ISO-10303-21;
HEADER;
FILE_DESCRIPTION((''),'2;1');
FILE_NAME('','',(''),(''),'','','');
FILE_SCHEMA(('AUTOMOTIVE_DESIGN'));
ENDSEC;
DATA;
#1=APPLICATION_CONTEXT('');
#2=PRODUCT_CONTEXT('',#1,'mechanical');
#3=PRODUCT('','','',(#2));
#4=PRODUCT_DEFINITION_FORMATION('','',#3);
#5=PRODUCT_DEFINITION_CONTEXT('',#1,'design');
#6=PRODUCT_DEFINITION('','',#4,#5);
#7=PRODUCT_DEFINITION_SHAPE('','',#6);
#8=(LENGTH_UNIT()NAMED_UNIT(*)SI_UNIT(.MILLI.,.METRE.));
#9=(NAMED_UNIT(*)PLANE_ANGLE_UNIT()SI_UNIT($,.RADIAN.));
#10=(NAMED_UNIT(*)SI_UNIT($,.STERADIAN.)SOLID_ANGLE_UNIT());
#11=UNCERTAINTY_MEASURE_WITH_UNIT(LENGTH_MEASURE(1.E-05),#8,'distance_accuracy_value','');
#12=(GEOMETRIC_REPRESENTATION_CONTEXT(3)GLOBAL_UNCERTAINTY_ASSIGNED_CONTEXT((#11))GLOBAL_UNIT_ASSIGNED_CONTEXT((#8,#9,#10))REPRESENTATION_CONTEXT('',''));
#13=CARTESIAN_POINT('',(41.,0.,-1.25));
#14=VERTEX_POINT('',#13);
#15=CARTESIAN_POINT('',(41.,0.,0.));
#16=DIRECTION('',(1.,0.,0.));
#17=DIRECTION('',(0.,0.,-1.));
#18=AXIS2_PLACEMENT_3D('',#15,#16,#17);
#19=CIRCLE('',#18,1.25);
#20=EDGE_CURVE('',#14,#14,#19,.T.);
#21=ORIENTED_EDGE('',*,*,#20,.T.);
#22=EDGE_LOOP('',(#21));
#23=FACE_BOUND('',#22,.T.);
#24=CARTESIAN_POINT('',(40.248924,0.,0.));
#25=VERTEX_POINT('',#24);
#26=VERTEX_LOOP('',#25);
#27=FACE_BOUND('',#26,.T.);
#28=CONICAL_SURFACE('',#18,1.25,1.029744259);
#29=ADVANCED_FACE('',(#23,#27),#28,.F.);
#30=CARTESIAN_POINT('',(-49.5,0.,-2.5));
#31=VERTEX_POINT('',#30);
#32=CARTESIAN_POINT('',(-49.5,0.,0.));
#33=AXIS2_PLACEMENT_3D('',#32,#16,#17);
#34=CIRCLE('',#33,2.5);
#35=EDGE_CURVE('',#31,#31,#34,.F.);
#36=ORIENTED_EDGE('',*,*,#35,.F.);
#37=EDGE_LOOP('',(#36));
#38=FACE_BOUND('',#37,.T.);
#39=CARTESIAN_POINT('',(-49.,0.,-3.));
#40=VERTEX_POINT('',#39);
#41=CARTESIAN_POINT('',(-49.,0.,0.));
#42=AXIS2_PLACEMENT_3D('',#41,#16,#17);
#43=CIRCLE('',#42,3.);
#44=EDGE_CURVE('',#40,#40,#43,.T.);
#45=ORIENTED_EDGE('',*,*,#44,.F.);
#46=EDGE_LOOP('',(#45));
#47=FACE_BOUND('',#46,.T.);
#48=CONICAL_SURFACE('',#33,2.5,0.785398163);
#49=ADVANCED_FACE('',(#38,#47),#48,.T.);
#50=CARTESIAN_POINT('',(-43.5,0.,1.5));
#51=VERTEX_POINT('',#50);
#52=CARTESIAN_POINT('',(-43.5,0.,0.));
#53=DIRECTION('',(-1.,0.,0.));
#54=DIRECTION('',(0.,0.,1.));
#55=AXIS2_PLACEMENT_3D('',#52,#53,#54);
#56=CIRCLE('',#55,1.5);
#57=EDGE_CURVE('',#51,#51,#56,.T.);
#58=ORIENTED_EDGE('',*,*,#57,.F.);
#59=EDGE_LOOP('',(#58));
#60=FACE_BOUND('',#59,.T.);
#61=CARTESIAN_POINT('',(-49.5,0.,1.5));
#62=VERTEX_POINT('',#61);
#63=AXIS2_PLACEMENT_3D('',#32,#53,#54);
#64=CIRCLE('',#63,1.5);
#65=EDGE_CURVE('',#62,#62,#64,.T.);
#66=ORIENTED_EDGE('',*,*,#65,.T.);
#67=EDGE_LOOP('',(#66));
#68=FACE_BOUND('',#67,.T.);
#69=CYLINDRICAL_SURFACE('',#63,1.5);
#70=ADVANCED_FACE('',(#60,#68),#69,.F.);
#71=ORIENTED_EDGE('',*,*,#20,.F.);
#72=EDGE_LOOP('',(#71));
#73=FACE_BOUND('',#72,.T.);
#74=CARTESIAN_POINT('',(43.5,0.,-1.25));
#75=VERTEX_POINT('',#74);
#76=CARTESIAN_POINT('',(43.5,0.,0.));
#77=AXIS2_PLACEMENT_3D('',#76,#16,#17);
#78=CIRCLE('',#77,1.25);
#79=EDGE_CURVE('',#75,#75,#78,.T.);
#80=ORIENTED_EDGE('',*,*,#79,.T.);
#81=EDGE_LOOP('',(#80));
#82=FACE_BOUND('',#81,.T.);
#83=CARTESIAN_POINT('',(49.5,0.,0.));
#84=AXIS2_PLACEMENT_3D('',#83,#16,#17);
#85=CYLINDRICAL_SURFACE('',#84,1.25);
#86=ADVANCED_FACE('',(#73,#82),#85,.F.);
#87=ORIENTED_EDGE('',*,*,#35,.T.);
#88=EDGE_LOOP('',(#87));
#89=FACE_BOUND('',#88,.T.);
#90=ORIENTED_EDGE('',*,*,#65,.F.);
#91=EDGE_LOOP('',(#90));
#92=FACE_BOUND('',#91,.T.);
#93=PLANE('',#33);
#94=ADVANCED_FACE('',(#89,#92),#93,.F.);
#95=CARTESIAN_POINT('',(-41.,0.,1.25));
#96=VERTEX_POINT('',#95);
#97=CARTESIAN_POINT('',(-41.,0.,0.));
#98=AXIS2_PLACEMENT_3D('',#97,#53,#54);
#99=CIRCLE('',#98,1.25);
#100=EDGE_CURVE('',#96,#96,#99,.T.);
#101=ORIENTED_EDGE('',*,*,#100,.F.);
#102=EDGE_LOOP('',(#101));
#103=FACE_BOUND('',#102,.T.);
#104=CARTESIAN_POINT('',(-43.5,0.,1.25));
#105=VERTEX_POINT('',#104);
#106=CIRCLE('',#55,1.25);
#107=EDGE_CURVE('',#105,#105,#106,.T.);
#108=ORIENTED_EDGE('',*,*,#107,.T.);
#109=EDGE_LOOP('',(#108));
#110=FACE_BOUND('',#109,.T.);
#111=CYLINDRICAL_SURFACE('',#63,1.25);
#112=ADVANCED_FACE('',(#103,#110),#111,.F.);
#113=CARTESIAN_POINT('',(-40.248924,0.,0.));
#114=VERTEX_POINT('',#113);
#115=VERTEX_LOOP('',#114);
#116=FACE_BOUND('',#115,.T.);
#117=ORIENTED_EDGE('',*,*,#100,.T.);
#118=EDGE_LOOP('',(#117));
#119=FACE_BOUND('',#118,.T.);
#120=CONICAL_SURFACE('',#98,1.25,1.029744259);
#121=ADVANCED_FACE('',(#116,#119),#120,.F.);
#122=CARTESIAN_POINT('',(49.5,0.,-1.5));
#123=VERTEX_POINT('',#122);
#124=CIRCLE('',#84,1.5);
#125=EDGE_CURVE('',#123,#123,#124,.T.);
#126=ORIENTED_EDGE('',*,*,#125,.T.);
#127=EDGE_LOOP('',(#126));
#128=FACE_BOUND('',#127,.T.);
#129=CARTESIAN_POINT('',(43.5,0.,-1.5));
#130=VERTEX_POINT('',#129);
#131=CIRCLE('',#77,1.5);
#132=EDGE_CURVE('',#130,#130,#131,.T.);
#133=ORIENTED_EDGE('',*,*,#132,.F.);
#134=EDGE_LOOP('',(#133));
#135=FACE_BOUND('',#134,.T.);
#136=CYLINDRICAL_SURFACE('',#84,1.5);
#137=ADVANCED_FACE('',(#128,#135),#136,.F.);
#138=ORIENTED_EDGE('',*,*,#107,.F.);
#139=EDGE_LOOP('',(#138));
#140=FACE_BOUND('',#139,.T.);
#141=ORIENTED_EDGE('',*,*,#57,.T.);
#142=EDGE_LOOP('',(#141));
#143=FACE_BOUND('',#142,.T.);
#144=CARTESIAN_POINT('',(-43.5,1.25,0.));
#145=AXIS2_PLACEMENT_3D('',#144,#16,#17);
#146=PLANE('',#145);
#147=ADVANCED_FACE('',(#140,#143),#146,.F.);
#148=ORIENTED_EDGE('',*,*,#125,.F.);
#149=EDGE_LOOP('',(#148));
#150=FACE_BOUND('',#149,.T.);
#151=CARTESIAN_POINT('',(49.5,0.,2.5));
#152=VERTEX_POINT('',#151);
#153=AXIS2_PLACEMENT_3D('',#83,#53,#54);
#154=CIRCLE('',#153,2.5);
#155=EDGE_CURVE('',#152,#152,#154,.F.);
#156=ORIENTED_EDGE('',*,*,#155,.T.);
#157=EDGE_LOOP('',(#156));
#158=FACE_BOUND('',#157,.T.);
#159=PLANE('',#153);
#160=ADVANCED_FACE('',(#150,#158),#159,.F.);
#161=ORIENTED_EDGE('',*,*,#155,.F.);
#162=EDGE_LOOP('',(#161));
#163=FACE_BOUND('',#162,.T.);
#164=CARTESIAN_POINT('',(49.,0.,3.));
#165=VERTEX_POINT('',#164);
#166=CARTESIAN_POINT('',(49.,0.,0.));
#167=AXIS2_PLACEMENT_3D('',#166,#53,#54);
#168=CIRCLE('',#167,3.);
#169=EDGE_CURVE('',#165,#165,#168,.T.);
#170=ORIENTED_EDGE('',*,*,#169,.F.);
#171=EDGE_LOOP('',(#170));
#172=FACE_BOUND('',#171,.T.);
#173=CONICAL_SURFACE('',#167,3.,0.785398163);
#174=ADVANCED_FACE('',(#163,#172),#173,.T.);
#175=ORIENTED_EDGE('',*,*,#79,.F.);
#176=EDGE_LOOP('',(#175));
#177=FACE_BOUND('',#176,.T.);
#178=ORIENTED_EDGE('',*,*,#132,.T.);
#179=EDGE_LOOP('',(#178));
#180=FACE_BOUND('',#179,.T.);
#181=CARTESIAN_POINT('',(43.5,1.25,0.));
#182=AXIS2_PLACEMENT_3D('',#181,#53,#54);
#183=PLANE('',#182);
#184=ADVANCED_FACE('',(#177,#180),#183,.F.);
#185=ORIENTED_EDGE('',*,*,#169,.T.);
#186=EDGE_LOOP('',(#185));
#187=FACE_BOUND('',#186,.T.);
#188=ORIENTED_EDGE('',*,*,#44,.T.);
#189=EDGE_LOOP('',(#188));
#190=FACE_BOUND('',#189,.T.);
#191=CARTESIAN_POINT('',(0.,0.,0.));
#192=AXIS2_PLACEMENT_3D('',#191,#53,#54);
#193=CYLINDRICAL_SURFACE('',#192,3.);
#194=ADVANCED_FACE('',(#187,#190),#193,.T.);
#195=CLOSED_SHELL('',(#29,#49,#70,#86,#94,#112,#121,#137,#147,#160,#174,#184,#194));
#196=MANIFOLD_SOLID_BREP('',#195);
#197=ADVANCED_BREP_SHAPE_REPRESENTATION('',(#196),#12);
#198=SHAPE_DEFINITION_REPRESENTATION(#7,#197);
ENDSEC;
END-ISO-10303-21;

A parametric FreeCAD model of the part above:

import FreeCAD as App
import Part
import Sketcher
from FreeCAD import Vector


def edges_at(feature, points):
    """Names of the edges that pass closest to the given points."""
    edges = feature.Shape.Edges
    near = lambda p: min(range(len(edges)), key=lambda i: edges[i].distToShape(Part.Vertex(*p))[0])
    return sorted({f"Edge{near(p) + 1}" for p in points})

doc = App.newDocument("Part")
body = doc.addObject("PartDesign::Body", "Body")

sketch1 = body.newObject("Sketcher::SketchObject", "Sketch")
sketch1.AttachmentSupport = (doc.getObject("XY_Plane"), [""])
sketch1.MapMode = "FlatFace"
sketch1.addGeometry([
    Part.LineSegment(Vector(-49.5, 3, 0), Vector(-49.5, 0, 0)),
    Part.LineSegment(Vector(-49.5, 0, 0), Vector(49.5, 0, 0)),
    Part.LineSegment(Vector(49.5, 0, 0), Vector(49.5, 3, 0)),
    Part.LineSegment(Vector(49.5, 3, 0), Vector(-49.5, 3, 0)),
], False)
sketch1.addConstraint([
    Sketcher.Constraint("Coincident", 0, 2, 1, 1),
    Sketcher.Constraint("Coincident", 1, 2, 2, 1),
    Sketcher.Constraint("Coincident", 2, 2, 3, 1),
    Sketcher.Constraint("Coincident", 3, 2, 0, 1),
    Sketcher.Constraint("Vertical", 0),
    Sketcher.Constraint("Horizontal", 1),
    Sketcher.Constraint("Vertical", 2),
    Sketcher.Constraint("Horizontal", 3),
    Sketcher.Constraint("Symmetric", 0, 2, 1, 2, -1, 1),
    Sketcher.Constraint("DistanceX", 1, 1, 1, 2, 99.0),
    Sketcher.Constraint("DistanceY", 0, 2, 0, 1, 3.0),
])
revolution = body.newObject("PartDesign::Revolution", "Revolution")
revolution.Profile = sketch1
revolution.ReferenceAxis = (sketch1, ["H_Axis"])
revolution.Angle = 360
doc.recompute()

chamfer = body.newObject("PartDesign::Chamfer", "Chamfer")
chamfer.Base = (revolution, edges_at(revolution, [(49.5, 0, -3), (-49.5, 0, -3)]))
chamfer.Size = 0.5

sketch2 = body.newObject("Sketcher::SketchObject", "Sketch001")
sketch2.AttachmentSupport = (doc.getObject("YZ_Plane"), [""])
sketch2.MapMode = "FlatFace"
sketch2.AttachmentOffset = App.Placement(Vector(0, 0, 49.5), App.Rotation())
sketch2.addGeometry(Part.Circle(Vector(0, 0, 0), Vector(0, 0, 1), 1.25), False)
sketch2.addConstraint([
    Sketcher.Constraint("Coincident", 0, 3, -1, 1),
    Sketcher.Constraint("Diameter", 0, 2.5),
])
doc.recompute()
hole = body.newObject("PartDesign::Hole", "Hole")
hole.Profile = sketch2
hole.ThreadType = "None"
hole.Diameter = 2.5
hole.DepthType = "Dimension"
hole.Depth = 8.5
hole.DrillPoint = "Angled"
hole.DrillPointAngle = 118
hole.HoleCutType = "Counterbore"
hole.HoleCutDiameter = 3
hole.HoleCutDepth = 6

sketch3 = body.newObject("Sketcher::SketchObject", "Sketch002")
sketch3.AttachmentSupport = (doc.getObject("YZ_Plane"), [""])
sketch3.MapMode = "FlatFace"
sketch3.AttachmentOffset = App.Placement(Vector(0, 0, -49.5), App.Rotation())
sketch3.addGeometry(Part.Circle(Vector(0, 0, 0), Vector(0, 0, 1), 1.25), False)
sketch3.addConstraint([
    Sketcher.Constraint("Coincident", 0, 3, -1, 1),
    Sketcher.Constraint("Diameter", 0, 2.5),
])
doc.recompute()
hole2 = body.newObject("PartDesign::Hole", "Hole001")
hole2.Profile = sketch3
hole2.ThreadType = "None"
hole2.Diameter = 2.5
hole2.DepthType = "Dimension"
hole2.Depth = 8.5
hole2.DrillPoint = "Angled"
hole2.DrillPointAngle = 118
hole2.HoleCutType = "Counterbore"
hole2.HoleCutDiameter = 3
hole2.HoleCutDepth = 6
hole2.Reversed = True

doc.recompute()
